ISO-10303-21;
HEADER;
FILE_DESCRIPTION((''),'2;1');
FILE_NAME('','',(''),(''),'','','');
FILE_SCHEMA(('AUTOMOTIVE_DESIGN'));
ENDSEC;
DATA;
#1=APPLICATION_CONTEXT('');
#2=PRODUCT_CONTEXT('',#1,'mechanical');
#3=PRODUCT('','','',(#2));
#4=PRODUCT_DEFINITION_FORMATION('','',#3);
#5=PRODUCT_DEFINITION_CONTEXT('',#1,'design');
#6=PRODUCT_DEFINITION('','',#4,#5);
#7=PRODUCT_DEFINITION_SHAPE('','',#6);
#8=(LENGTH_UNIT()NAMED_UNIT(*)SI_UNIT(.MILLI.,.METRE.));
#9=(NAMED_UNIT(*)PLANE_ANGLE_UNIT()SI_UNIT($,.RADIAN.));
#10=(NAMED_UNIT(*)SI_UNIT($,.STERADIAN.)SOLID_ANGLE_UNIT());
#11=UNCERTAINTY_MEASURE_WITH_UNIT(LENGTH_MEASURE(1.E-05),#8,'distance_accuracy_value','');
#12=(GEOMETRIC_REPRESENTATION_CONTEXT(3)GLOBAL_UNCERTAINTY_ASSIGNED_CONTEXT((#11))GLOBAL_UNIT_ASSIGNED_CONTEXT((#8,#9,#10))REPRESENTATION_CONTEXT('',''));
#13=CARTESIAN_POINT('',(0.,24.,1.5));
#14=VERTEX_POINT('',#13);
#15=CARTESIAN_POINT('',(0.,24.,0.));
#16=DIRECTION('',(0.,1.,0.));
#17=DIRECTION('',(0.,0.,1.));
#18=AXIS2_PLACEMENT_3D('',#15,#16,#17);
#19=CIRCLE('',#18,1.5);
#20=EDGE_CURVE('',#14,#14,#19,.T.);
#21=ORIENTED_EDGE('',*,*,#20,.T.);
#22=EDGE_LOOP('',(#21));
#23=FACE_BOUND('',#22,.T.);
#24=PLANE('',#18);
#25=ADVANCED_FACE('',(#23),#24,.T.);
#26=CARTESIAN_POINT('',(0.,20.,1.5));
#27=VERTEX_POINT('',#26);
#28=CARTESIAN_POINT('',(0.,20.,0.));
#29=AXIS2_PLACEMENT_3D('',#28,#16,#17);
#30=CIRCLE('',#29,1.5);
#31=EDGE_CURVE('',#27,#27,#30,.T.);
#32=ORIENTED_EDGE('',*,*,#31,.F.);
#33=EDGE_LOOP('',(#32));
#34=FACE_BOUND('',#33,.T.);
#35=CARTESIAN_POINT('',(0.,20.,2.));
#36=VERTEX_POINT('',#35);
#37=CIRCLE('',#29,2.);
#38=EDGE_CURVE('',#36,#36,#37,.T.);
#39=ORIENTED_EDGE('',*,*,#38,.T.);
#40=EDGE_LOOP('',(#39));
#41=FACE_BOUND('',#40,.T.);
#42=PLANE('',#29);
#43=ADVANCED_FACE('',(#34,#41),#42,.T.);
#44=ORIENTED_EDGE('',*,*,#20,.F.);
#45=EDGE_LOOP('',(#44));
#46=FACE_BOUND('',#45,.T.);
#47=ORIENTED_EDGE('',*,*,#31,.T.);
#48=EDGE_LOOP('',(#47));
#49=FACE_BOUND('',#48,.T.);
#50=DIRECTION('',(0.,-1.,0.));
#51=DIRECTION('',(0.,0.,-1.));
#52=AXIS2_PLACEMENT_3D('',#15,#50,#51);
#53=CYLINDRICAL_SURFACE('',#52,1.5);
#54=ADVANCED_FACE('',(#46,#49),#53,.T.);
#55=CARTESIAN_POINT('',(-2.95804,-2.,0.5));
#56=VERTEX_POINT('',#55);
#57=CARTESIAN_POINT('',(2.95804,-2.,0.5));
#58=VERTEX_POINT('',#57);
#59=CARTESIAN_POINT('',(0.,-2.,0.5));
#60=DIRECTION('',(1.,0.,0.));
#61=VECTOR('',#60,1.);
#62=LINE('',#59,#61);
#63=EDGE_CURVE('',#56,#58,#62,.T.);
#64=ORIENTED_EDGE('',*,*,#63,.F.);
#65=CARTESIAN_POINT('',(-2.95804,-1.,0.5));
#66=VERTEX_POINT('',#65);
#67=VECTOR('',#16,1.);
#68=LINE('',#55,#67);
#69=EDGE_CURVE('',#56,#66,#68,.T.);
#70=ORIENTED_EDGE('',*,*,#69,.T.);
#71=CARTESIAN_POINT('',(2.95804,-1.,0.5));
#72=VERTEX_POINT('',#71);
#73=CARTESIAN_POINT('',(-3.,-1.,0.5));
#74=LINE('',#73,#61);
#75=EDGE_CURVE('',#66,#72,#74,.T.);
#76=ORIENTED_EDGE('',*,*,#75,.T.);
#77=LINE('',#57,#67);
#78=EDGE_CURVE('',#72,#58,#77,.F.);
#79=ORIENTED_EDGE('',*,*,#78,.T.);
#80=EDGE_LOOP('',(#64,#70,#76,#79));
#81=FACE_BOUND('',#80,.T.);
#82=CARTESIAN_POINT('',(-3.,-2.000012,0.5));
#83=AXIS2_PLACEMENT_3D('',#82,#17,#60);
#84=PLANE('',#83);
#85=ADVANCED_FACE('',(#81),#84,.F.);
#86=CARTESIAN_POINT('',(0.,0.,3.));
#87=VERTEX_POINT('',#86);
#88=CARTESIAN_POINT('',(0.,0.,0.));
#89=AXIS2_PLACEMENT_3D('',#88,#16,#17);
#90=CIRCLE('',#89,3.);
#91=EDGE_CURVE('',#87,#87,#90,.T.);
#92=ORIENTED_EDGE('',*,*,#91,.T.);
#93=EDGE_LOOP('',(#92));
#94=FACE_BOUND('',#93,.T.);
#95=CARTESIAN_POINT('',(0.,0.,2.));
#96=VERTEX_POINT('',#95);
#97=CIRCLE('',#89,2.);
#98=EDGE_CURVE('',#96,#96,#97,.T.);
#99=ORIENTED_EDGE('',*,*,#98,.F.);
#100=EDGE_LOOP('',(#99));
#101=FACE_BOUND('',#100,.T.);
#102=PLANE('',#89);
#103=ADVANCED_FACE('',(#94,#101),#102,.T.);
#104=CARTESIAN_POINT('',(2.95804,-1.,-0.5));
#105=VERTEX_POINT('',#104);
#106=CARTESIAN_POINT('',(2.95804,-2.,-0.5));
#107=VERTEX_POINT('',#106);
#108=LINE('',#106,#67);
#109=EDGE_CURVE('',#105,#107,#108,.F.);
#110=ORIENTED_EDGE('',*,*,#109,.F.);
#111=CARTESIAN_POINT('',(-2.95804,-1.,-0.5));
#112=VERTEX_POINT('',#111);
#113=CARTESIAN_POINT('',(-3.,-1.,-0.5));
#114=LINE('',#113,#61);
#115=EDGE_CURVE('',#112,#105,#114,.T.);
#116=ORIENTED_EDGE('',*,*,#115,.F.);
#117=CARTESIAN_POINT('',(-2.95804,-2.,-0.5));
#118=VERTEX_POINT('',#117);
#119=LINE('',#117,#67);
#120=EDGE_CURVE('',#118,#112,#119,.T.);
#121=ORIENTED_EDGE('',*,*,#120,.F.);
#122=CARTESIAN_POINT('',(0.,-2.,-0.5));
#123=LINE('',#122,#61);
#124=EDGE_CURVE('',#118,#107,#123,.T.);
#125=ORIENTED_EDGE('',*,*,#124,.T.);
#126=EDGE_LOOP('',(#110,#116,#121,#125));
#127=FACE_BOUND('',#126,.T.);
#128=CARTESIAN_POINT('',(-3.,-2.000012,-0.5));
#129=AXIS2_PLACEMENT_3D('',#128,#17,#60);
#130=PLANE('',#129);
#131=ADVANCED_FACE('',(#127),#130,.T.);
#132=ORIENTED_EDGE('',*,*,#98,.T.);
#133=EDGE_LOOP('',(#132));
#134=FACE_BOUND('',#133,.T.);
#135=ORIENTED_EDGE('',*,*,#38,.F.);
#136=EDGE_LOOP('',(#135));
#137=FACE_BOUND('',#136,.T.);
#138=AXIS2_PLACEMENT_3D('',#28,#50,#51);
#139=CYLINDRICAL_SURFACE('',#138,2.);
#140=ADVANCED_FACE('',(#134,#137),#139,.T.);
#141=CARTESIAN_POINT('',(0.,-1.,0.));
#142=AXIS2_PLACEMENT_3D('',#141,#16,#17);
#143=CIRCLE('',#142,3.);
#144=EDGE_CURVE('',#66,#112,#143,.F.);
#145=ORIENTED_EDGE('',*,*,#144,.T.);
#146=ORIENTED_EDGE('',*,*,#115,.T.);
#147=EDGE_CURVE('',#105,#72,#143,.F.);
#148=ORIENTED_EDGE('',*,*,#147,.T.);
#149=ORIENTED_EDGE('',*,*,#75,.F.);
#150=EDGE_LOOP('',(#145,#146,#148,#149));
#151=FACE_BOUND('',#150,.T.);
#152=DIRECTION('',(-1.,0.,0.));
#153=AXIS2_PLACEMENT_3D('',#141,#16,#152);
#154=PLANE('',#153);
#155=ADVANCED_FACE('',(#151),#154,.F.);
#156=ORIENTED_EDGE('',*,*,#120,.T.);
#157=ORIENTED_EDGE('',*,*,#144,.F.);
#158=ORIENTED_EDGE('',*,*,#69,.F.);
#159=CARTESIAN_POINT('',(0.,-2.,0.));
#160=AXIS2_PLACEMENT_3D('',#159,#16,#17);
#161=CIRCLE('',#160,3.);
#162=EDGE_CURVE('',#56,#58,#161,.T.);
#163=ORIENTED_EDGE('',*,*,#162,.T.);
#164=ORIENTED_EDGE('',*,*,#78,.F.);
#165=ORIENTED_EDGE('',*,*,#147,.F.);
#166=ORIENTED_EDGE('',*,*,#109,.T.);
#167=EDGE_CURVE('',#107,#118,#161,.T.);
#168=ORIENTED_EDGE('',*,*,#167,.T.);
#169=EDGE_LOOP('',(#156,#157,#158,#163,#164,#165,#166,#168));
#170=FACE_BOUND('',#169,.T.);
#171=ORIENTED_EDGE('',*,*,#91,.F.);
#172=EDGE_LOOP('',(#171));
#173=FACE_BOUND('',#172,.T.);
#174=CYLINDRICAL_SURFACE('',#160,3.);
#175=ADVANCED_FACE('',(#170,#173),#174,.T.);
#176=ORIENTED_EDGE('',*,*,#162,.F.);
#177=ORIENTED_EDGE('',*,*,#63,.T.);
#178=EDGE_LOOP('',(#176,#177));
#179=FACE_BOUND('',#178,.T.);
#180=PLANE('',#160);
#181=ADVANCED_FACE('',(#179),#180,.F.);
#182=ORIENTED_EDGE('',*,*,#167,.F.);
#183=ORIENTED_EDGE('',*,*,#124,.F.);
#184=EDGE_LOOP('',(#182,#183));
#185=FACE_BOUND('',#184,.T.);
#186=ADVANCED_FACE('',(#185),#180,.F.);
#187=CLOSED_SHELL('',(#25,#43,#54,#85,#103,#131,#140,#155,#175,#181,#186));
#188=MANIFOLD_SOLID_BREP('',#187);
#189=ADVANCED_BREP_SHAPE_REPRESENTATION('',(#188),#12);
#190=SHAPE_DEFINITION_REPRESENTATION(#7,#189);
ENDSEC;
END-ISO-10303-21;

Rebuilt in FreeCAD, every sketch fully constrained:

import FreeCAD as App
import Part
import Sketcher
Q = App.Units.Quantity

doc = App.newDocument("Part")
body = doc.addObject("PartDesign::Body", "Body")

# Sketch on XZ plane
sketch1 = doc.addObject("Sketcher::SketchObject", "Sketch")
body.addObject(sketch1)
sketch1.AttachmentSupport = (doc.XZ_Plane, [""])
sketch1.MapMode = "FlatFace"
sketch1.addGeometry(Part.Circle(App.Vector(0, 0, 0), App.Vector(0, 0, 1), 3), False)
sketch1.addConstraint([
    Sketcher.Constraint("Coincident", 0, 3, -1, 1),
    Sketcher.Constraint("Diameter", 0, Q("6 mm")),
])
pad1 = doc.addObject("PartDesign::Pad", "Pad")
body.addObject(pad1)
pad1.Profile = sketch1
pad1.Length = 2

# Sketch on XZ plane
sketch2 = doc.addObject("Sketcher::SketchObject", "Sketch001")
body.addObject(sketch2)
sketch2.AttachmentSupport = (doc.XZ_Plane, [""])
sketch2.MapMode = "FlatFace"
sketch2.addGeometry(Part.Circle(App.Vector(0, 0, 0), App.Vector(0, 0, 1), 2), False)
sketch2.addConstraint([
    Sketcher.Constraint("Coincident", 0, 3, -1, 1),
    Sketcher.Constraint("Diameter", 0, Q("4 mm")),
])
pad2 = doc.addObject("PartDesign::Pad", "Pad001")
body.addObject(pad2)
pad2.Profile = sketch2
pad2.Length = 20
pad2.Reversed = True

# Sketch on XZ plane
sketch3 = doc.addObject("Sketcher::SketchObject", "Sketch002")
body.addObject(sketch3)
sketch3.AttachmentSupport = (doc.XZ_Plane, [""])
sketch3.MapMode = "FlatFace"
sketch3.AttachmentOffset = App.Placement(App.Vector(0, 0, -20), App.Rotation())
sketch3.addGeometry(Part.Circle(App.Vector(0, 0, 0), App.Vector(0, 0, 1), 1.5), False)
sketch3.addConstraint([
    Sketcher.Constraint("Coincident", 0, 3, -1, 1),
    Sketcher.Constraint("Diameter", 0, Q("3 mm")),
])
pad3 = doc.addObject("PartDesign::Pad", "Pad002")
body.addObject(pad3)
pad3.Profile = sketch3
pad3.Length = 4
pad3.Reversed = True

# Sketch on XZ plane
sketch4 = doc.addObject("Sketcher::SketchObject", "Sketch003")
body.addObject(sketch4)
sketch4.AttachmentSupport = (doc.XZ_Plane, [""])
sketch4.MapMode = "FlatFace"
sketch4.AttachmentOffset = App.Placement(App.Vector(0, 0, 2), App.Rotation())
sketch4.addGeometry([
    Part.LineSegment(App.Vector(-3, 0.5, 0), App.Vector(-3, -0.5, 0)),
    Part.LineSegment(App.Vector(-3, -0.5, 0), App.Vector(3, -0.5, 0)),
    Part.LineSegment(App.Vector(3, -0.5, 0), App.Vector(3, 0.5, 0)),
    Part.LineSegment(App.Vector(3, 0.5, 0), App.Vector(-3, 0.5, 0)),
], False)
sketch4.addConstraint([
    Sketcher.Constraint("Coincident", 0, 2, 1, 1),
    Sketcher.Constraint("Coincident", 1, 2, 2, 1),
    Sketcher.Constraint("Coincident", 2, 2, 3, 1),
    Sketcher.Constraint("Coincident", 3, 2, 0, 1),
    Sketcher.Constraint("Vertical", 0),
    Sketcher.Constraint("Horizontal", 1),
    Sketcher.Constraint("Vertical", 2),
    Sketcher.Constraint("Horizontal", 3),
    Sketcher.Constraint("Symmetric", 0, 2, 2, 2, -1, 1),
    Sketcher.Constraint("DistanceX", 1, 1, 1, 2, Q("6 mm")),
    Sketcher.Constraint("DistanceY", 0, 2, 0, 1, Q("1 mm")),
])
pocket1 = doc.addObject("PartDesign::Pocket", "Pocket")
body.addObject(pocket1)
pocket1.Profile = sketch4
pocket1.Type = "TwoLengths"
pocket1.Length = 27.34388
pocket1.Length2 = 1
pocket1.Reversed = True

doc.recompute()
